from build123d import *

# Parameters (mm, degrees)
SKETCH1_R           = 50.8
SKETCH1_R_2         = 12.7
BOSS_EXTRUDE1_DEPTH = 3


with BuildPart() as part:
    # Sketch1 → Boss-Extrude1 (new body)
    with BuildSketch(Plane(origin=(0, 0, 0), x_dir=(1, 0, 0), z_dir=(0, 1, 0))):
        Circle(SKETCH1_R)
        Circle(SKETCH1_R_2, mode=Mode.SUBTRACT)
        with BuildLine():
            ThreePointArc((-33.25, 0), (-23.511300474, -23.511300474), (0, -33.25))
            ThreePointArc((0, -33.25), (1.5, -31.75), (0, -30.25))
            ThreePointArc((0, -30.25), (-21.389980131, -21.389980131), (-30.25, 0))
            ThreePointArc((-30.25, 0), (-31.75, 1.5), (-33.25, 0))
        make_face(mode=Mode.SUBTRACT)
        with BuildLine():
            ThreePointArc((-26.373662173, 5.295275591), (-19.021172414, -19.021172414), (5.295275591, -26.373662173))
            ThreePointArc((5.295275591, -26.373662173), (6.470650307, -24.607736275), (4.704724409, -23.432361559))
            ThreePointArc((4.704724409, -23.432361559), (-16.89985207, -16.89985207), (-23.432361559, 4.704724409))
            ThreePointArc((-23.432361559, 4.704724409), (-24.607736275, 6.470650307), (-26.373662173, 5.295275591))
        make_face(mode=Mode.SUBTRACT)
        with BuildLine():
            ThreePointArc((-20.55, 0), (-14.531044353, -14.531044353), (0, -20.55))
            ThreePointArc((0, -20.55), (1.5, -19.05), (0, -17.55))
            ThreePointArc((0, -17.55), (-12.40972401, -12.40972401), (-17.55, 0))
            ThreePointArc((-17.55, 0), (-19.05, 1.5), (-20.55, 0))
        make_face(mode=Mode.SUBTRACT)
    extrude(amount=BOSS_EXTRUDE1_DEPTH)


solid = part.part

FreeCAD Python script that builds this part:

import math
import FreeCAD as App
import Part
import Sketcher

V = App.Vector

doc = App.newDocument("Part")
body = doc.addObject("PartDesign::Body", "Body")

# Sketch on XZ plane
sketch1 = body.newObject("Sketcher::SketchObject", "Sketch")
sketch1.AttachmentSupport = (doc.getObject("XZ_Plane"), [""])
sketch1.MapMode = "FlatFace"
sketch1.addGeometry([
    Part.Circle(V(0, 0, 0), V(0, 0, 1), 50.8),  # 0
    Part.ArcOfCircle(Part.Circle(V(0, 0, 0), V(0, 0, 1), 33.3), math.radians(90), math.radians(180)),  # 1
    Part.ArcOfCircle(Part.Circle(V(-31.8, 0, 0), V(0, 0, 1), 1.5), math.radians(180), math.radians(360)),  # 2
    Part.ArcOfCircle(Part.Circle(V(0, 0, 0), V(0, 0, 1), 30.2), math.radians(90), math.radians(180)),  # 3
    Part.ArcOfCircle(Part.Circle(V(0, 31.8, 0), V(0, 0, 1), 1.5), math.radians(-90), math.radians(90)),  # 4
    Part.ArcOfCircle(Part.Circle(V(0, 0, 0), V(0, 0, 1), 26.9), math.radians(79), math.radians(191)),  # 5
    Part.ArcOfCircle(Part.Circle(V(-24.9, -5, 0), V(0, 0, 1), 1.5), math.radians(-169), math.radians(11)),  # 6
    Part.ArcOfCircle(Part.Circle(V(0, 0, 0), V(0, 0, 1), 23.9), math.radians(79), math.radians(191)),  # 7
    Part.ArcOfCircle(Part.Circle(V(5, 24.9, 0), V(0, 0, 1), 1.5), math.radians(-101), math.radians(79)),  # 8
    Part.ArcOfCircle(Part.Circle(V(0, 0, 0), V(0, 0, 1), 20.6), math.radians(90), math.radians(180)),  # 9
    Part.ArcOfCircle(Part.Circle(V(-19.1, 0, 0), V(0, 0, 1), 1.5), math.radians(180), math.radians(360)),  # 10
    Part.ArcOfCircle(Part.Circle(V(0, 0, 0), V(0, 0, 1), 17.5), math.radians(90), math.radians(180)),  # 11
    Part.ArcOfCircle(Part.Circle(V(0, 19.1, 0), V(0, 0, 1), 1.5), math.radians(-90), math.radians(90)),  # 12
    Part.Circle(V(0, 0, 0), V(0, 0, 1), 12.7),  # 13
], False)
sketch1.addConstraint([
    Sketcher.Constraint("Tangent", 1, 2, 2, 1),
    Sketcher.Constraint("Tangent", 2, 2, 3, 2),
    Sketcher.Constraint("Tangent", 3, 1, 4, 1),
    Sketcher.Constraint("Tangent", 4, 2, 1, 1),
    Sketcher.Constraint("Tangent", 5, 2, 6, 1),
    Sketcher.Constraint("Tangent", 6, 2, 7, 2),
    Sketcher.Constraint("Tangent", 7, 1, 8, 1),
    Sketcher.Constraint("Tangent", 8, 2, 5, 1),
    Sketcher.Constraint("Tangent", 9, 2, 10, 1),
    Sketcher.Constraint("Tangent", 10, 2, 11, 2),
    Sketcher.Constraint("Tangent", 11, 1, 12, 1),
    Sketcher.Constraint("Tangent", 12, 2, 9, 1),
    Sketcher.Constraint("Coincident", 0, 3, -1, 1),
    Sketcher.Constraint("Coincident", 1, 3, -1, 1),
    Sketcher.Constraint("Coincident", 3, 3, -1, 1),
    Sketcher.Constraint("Coincident", 5, 3, -1, 1),
    Sketcher.Constraint("Coincident", 7, 3, -1, 1),
    Sketcher.Constraint("Coincident", 9, 3, -1, 1),
    Sketcher.Constraint("Coincident", 11, 3, -1, 1),
    Sketcher.Constraint("Coincident", 13, 3, -1, 1),
    Sketcher.Constraint("Equal", 4, 6),
    Sketcher.Constraint("Equal", 8, 10),
    Sketcher.Constraint("PointOnObject", 2, 3, -1),
    Sketcher.Constraint("PointOnObject", 4, 3, -2),
    Sketcher.Constraint("PointOnObject", 10, 3, -1),
    Sketcher.Constraint("PointOnObject", 12, 3, -2),
    Sketcher.Constraint("Diameter", 0, 101.6),
    Sketcher.Constraint("Diameter", 13, 25.4),
    Sketcher.Constraint("Radius", 2, 1.5),
    Sketcher.Constraint("Radius", 5, 26.9),
    Sketcher.Constraint("Radius", 1, 33.25),
    Sketcher.Constraint("Radius", 9, 20.55),
    Sketcher.Constraint("DistanceY", 6, 3, -1, 1, 5.0),
    Sketcher.Constraint("DistanceX", -1, 1, 8, 3, 5.0),
])
pad1 = body.newObject("PartDesign::Pad", "Pad")
pad1.Profile = sketch1
pad1.Length = 3
pad1.Reversed = True

doc.recompute()
